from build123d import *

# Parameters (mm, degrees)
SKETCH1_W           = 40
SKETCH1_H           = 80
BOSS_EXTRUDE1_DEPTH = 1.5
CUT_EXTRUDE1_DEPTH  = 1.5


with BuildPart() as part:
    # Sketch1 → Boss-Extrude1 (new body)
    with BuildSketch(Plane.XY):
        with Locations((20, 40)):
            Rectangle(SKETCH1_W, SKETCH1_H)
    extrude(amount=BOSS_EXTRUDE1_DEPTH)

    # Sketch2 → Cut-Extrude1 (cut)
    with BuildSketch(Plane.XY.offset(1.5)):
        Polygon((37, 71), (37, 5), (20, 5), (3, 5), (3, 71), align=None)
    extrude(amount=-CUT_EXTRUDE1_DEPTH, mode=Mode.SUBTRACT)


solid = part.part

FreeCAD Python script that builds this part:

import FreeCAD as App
import Part
import Sketcher

doc = App.newDocument("Part")
body = doc.addObject("PartDesign::Body", "Body")

sketch1 = body.newObject("Sketcher::SketchObject", "Sketch")
sketch1.AttachmentSupport = (doc.getObject("XY_Plane"), [""])
sketch1.MapMode = "FlatFace"
sketch1.addGeometry([
    Part.LineSegment(App.Vector(0, 80, 0), App.Vector(0, 0, 0)),
    Part.LineSegment(App.Vector(0, 0, 0), App.Vector(40, 0, 0)),
    Part.LineSegment(App.Vector(40, 0, 0), App.Vector(40, 80, 0)),
    Part.LineSegment(App.Vector(40, 80, 0), App.Vector(0, 80, 0)),
], False)
sketch1.addConstraint([
    Sketcher.Constraint("Coincident", 0, 2, 1, 1),
    Sketcher.Constraint("Coincident", 1, 2, 2, 1),
    Sketcher.Constraint("Coincident", 2, 2, 3, 1),
    Sketcher.Constraint("Coincident", 3, 2, 0, 1),
    Sketcher.Constraint("Vertical", 0),
    Sketcher.Constraint("Horizontal", 1),
    Sketcher.Constraint("Vertical", 2),
    Sketcher.Constraint("Horizontal", 3),
    Sketcher.Constraint("Coincident", 0, 2, -1, 1),
    Sketcher.Constraint("DistanceX", 1, 1, 1, 2, 40.0),
    Sketcher.Constraint("DistanceY", 0, 2, 0, 1, 80.0),
])
pad1 = body.newObject("PartDesign::Pad", "Pad")
pad1.Profile = sketch1
pad1.Length = 1.5

sketch2 = body.newObject("Sketcher::SketchObject", "Sketch001")
sketch2.AttachmentSupport = (doc.getObject("XY_Plane"), [""])
sketch2.MapMode = "FlatFace"
sketch2.AttachmentOffset = App.Placement(App.Vector(0, 0, 1.5), App.Rotation())
sketch2.addGeometry([
    Part.LineSegment(App.Vector(37, 5, 0), App.Vector(37, 71, 0)),
    Part.LineSegment(App.Vector(37, 71, 0), App.Vector(3, 71, 0)),
    Part.LineSegment(App.Vector(3, 71, 0), App.Vector(3, 5, 0)),
    Part.LineSegment(App.Vector(3, 5, 0), App.Vector(37, 5, 0)),
], False)
sketch2.addConstraint([
    Sketcher.Constraint("Coincident", 0, 2, 1, 1),
    Sketcher.Constraint("Coincident", 1, 2, 2, 1),
    Sketcher.Constraint("Coincident", 2, 2, 3, 1),
    Sketcher.Constraint("Coincident", 3, 2, 0, 1),
    Sketcher.Constraint("Vertical", 0),
    Sketcher.Constraint("Horizontal", 1),
    Sketcher.Constraint("Vertical", 2),
    Sketcher.Constraint("Horizontal", 3),
    Sketcher.Constraint("DistanceX", 1, 2, 1, 1, 34.0),
    Sketcher.Constraint("DistanceY", 0, 1, 0, 2, 66.0),
    Sketcher.Constraint("DistanceX", -1, 1, 0, 2, 37.0),
    Sketcher.Constraint("DistanceY", -1, 1, 0, 2, 71.0),
])
pocket1 = body.newObject("PartDesign::Pocket", "Pocket")
pocket1.Profile = sketch2
pocket1.Length = 1.5

doc.recompute()
